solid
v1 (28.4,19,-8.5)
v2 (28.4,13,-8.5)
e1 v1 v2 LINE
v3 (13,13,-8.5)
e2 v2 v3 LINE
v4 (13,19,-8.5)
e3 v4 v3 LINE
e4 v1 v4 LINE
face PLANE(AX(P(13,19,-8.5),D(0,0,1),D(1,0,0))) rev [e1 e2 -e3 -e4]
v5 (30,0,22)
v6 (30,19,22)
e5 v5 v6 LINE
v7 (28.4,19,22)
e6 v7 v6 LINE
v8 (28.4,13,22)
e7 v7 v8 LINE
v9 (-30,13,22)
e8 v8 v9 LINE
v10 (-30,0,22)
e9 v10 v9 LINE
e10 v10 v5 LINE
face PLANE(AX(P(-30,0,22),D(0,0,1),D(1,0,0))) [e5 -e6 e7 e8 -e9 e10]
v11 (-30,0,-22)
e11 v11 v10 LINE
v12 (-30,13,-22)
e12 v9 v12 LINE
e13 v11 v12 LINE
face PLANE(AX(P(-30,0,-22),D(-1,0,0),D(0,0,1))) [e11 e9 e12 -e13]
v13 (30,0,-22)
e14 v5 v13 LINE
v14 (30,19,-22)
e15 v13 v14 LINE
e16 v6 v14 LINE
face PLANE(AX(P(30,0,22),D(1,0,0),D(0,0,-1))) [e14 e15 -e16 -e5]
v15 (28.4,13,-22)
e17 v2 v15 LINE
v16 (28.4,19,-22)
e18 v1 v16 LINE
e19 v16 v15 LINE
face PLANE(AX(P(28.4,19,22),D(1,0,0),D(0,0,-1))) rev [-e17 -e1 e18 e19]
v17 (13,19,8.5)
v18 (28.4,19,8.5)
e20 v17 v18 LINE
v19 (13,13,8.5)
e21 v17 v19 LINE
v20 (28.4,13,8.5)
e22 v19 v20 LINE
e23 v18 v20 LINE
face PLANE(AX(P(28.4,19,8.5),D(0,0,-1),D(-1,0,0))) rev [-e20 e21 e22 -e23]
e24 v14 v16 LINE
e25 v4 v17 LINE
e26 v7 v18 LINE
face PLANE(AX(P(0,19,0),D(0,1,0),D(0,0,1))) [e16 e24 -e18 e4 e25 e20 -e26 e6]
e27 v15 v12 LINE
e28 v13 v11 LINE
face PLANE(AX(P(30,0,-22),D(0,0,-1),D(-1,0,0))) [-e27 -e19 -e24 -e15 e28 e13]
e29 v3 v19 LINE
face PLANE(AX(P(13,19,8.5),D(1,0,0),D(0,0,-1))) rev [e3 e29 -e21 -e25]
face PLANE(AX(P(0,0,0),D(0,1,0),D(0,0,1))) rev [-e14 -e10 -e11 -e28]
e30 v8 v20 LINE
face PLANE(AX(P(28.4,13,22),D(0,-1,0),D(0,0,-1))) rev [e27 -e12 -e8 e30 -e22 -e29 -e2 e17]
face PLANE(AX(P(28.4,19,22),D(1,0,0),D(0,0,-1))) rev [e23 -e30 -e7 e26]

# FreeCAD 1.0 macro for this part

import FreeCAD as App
import Part
import Sketcher

V = App.Vector

doc = App.newDocument("Part")
body = doc.addObject("PartDesign::Body", "Body")

sketch1 = body.newObject("Sketcher::SketchObject", "Sketch")
sketch1.AttachmentSupport = (doc.getObject("XZ_Plane"), [""])
sketch1.MapMode = "FlatFace"
sketch1.AttachmentOffset = App.Placement(V(0, 0, -19), App.Rotation())
sketch1.addGeometry([
    Part.LineSegment(V(-30, -22, 0), V(-30, 22, 0)),
    Part.LineSegment(V(-30, 22, 0), V(30, 22, 0)),
    Part.LineSegment(V(30, 22, 0), V(30, -22, 0)),
    Part.LineSegment(V(30, -22, 0), V(-30, -22, 0)),
], False)
sketch1.addConstraint([
    Sketcher.Constraint("Coincident", 0, 2, 1, 1),
    Sketcher.Constraint("Coincident", 1, 2, 2, 1),
    Sketcher.Constraint("Coincident", 2, 2, 3, 1),
    Sketcher.Constraint("Coincident", 3, 2, 0, 1),
    Sketcher.Constraint("Vertical", 0),
    Sketcher.Constraint("Horizontal", 1),
    Sketcher.Constraint("Vertical", 2),
    Sketcher.Constraint("Horizontal", 3),
    Sketcher.Constraint("Symmetric", 0, 2, 2, 2, -1, 1),
    Sketcher.Constraint("DistanceX", 1, 1, 1, 2, 60.0),
    Sketcher.Constraint("DistanceY", 0, 1, 0, 2, 44.0),
])
pad1 = body.newObject("PartDesign::Pad", "Pad")
pad1.Profile = sketch1
pad1.Length = 19

sketch2 = body.newObject("Sketcher::SketchObject", "Sketch001")
sketch2.AttachmentSupport = (doc.getObject("XY_Plane"), [""])
sketch2.MapMode = "FlatFace"
sketch2.AttachmentOffset = App.Placement(V(0, 0, -22), App.Rotation())
sketch2.addGeometry([
    Part.LineSegment(V(28, 19, 0), V(28, 13, 0)),
    Part.LineSegment(V(28, 13, 0), V(-30, 13, 0)),
    Part.LineSegment(V(-30, 13, 0), V(-30, 19, 0)),
    Part.LineSegment(V(-30, 19, 0), V(28, 19, 0)),
], False)
sketch2.addConstraint([
    Sketcher.Constraint("Coincident", 0, 2, 1, 1),
    Sketcher.Constraint("Coincident", 1, 2, 2, 1),
    Sketcher.Constraint("Coincident", 2, 2, 3, 1),
    Sketcher.Constraint("Coincident", 3, 2, 0, 1),
    Sketcher.Constraint("Vertical", 0),
    Sketcher.Constraint("Horizontal", 1),
    Sketcher.Constraint("Vertical", 2),
    Sketcher.Constraint("Horizontal", 3),
    Sketcher.Constraint("DistanceY", 0, 2, 0, 1, 6.0),
    Sketcher.Constraint("DistanceX", 1, 2, 1, 1, 58.4),
    Sketcher.Constraint("DistanceY", -1, 1, 0, 2, 13.0),
    Sketcher.Constraint("DistanceX", 1, 2, -1, 1, 30.0),
])
pocket1 = body.newObject("PartDesign::Pocket", "Pocket")
pocket1.Profile = sketch2
pocket1.Type = "ThroughAll"
pocket1.Reversed = True

sketch3 = body.newObject("Sketcher::SketchObject", "Sketch002")
sketch3.AttachmentSupport = (doc.getObject("XZ_Plane"), [""])
sketch3.MapMode = "FlatFace"
sketch3.AttachmentOffset = App.Placement(V(0, 0, -13), App.Rotation())
sketch3.addGeometry([
    Part.LineSegment(V(28, 8, 0), V(28, -8, 0)),
    Part.LineSegment(V(28, -8, 0), V(13, -8, 0)),
    Part.LineSegment(V(13, -8, 0), V(13, 8, 0)),
    Part.LineSegment(V(13, 8, 0), V(28, 8, 0)),
], False)
sketch3.addConstraint([
    Sketcher.Constraint("Coincident", 0, 2, 1, 1),
    Sketcher.Constraint("Coincident", 1, 2, 2, 1),
    Sketcher.Constraint("Coincident", 2, 2, 3, 1),
    Sketcher.Constraint("Coincident", 3, 2, 0, 1),
    Sketcher.Constraint("Vertical", 0),
    Sketcher.Constraint("Horizontal", 1),
    Sketcher.Constraint("Vertical", 2),
    Sketcher.Constraint("Horizontal", 3),
    Sketcher.Constraint("DistanceY", 0, 2, 0, 1, 17.0),
    Sketcher.Constraint("DistanceX", 1, 2, 1, 1, 15.4),
    Sketcher.Constraint("DistanceX", -1, 1, 1, 2, 13.0),
    Sketcher.Constraint("DistanceY", 0, 2, -1, 1, 8.5),
])
pad2 = body.newObject("PartDesign::Pad", "Pad001")
pad2.Profile = sketch3
pad2.Length = 6
pad2.Reversed = True

doc.recompute()
